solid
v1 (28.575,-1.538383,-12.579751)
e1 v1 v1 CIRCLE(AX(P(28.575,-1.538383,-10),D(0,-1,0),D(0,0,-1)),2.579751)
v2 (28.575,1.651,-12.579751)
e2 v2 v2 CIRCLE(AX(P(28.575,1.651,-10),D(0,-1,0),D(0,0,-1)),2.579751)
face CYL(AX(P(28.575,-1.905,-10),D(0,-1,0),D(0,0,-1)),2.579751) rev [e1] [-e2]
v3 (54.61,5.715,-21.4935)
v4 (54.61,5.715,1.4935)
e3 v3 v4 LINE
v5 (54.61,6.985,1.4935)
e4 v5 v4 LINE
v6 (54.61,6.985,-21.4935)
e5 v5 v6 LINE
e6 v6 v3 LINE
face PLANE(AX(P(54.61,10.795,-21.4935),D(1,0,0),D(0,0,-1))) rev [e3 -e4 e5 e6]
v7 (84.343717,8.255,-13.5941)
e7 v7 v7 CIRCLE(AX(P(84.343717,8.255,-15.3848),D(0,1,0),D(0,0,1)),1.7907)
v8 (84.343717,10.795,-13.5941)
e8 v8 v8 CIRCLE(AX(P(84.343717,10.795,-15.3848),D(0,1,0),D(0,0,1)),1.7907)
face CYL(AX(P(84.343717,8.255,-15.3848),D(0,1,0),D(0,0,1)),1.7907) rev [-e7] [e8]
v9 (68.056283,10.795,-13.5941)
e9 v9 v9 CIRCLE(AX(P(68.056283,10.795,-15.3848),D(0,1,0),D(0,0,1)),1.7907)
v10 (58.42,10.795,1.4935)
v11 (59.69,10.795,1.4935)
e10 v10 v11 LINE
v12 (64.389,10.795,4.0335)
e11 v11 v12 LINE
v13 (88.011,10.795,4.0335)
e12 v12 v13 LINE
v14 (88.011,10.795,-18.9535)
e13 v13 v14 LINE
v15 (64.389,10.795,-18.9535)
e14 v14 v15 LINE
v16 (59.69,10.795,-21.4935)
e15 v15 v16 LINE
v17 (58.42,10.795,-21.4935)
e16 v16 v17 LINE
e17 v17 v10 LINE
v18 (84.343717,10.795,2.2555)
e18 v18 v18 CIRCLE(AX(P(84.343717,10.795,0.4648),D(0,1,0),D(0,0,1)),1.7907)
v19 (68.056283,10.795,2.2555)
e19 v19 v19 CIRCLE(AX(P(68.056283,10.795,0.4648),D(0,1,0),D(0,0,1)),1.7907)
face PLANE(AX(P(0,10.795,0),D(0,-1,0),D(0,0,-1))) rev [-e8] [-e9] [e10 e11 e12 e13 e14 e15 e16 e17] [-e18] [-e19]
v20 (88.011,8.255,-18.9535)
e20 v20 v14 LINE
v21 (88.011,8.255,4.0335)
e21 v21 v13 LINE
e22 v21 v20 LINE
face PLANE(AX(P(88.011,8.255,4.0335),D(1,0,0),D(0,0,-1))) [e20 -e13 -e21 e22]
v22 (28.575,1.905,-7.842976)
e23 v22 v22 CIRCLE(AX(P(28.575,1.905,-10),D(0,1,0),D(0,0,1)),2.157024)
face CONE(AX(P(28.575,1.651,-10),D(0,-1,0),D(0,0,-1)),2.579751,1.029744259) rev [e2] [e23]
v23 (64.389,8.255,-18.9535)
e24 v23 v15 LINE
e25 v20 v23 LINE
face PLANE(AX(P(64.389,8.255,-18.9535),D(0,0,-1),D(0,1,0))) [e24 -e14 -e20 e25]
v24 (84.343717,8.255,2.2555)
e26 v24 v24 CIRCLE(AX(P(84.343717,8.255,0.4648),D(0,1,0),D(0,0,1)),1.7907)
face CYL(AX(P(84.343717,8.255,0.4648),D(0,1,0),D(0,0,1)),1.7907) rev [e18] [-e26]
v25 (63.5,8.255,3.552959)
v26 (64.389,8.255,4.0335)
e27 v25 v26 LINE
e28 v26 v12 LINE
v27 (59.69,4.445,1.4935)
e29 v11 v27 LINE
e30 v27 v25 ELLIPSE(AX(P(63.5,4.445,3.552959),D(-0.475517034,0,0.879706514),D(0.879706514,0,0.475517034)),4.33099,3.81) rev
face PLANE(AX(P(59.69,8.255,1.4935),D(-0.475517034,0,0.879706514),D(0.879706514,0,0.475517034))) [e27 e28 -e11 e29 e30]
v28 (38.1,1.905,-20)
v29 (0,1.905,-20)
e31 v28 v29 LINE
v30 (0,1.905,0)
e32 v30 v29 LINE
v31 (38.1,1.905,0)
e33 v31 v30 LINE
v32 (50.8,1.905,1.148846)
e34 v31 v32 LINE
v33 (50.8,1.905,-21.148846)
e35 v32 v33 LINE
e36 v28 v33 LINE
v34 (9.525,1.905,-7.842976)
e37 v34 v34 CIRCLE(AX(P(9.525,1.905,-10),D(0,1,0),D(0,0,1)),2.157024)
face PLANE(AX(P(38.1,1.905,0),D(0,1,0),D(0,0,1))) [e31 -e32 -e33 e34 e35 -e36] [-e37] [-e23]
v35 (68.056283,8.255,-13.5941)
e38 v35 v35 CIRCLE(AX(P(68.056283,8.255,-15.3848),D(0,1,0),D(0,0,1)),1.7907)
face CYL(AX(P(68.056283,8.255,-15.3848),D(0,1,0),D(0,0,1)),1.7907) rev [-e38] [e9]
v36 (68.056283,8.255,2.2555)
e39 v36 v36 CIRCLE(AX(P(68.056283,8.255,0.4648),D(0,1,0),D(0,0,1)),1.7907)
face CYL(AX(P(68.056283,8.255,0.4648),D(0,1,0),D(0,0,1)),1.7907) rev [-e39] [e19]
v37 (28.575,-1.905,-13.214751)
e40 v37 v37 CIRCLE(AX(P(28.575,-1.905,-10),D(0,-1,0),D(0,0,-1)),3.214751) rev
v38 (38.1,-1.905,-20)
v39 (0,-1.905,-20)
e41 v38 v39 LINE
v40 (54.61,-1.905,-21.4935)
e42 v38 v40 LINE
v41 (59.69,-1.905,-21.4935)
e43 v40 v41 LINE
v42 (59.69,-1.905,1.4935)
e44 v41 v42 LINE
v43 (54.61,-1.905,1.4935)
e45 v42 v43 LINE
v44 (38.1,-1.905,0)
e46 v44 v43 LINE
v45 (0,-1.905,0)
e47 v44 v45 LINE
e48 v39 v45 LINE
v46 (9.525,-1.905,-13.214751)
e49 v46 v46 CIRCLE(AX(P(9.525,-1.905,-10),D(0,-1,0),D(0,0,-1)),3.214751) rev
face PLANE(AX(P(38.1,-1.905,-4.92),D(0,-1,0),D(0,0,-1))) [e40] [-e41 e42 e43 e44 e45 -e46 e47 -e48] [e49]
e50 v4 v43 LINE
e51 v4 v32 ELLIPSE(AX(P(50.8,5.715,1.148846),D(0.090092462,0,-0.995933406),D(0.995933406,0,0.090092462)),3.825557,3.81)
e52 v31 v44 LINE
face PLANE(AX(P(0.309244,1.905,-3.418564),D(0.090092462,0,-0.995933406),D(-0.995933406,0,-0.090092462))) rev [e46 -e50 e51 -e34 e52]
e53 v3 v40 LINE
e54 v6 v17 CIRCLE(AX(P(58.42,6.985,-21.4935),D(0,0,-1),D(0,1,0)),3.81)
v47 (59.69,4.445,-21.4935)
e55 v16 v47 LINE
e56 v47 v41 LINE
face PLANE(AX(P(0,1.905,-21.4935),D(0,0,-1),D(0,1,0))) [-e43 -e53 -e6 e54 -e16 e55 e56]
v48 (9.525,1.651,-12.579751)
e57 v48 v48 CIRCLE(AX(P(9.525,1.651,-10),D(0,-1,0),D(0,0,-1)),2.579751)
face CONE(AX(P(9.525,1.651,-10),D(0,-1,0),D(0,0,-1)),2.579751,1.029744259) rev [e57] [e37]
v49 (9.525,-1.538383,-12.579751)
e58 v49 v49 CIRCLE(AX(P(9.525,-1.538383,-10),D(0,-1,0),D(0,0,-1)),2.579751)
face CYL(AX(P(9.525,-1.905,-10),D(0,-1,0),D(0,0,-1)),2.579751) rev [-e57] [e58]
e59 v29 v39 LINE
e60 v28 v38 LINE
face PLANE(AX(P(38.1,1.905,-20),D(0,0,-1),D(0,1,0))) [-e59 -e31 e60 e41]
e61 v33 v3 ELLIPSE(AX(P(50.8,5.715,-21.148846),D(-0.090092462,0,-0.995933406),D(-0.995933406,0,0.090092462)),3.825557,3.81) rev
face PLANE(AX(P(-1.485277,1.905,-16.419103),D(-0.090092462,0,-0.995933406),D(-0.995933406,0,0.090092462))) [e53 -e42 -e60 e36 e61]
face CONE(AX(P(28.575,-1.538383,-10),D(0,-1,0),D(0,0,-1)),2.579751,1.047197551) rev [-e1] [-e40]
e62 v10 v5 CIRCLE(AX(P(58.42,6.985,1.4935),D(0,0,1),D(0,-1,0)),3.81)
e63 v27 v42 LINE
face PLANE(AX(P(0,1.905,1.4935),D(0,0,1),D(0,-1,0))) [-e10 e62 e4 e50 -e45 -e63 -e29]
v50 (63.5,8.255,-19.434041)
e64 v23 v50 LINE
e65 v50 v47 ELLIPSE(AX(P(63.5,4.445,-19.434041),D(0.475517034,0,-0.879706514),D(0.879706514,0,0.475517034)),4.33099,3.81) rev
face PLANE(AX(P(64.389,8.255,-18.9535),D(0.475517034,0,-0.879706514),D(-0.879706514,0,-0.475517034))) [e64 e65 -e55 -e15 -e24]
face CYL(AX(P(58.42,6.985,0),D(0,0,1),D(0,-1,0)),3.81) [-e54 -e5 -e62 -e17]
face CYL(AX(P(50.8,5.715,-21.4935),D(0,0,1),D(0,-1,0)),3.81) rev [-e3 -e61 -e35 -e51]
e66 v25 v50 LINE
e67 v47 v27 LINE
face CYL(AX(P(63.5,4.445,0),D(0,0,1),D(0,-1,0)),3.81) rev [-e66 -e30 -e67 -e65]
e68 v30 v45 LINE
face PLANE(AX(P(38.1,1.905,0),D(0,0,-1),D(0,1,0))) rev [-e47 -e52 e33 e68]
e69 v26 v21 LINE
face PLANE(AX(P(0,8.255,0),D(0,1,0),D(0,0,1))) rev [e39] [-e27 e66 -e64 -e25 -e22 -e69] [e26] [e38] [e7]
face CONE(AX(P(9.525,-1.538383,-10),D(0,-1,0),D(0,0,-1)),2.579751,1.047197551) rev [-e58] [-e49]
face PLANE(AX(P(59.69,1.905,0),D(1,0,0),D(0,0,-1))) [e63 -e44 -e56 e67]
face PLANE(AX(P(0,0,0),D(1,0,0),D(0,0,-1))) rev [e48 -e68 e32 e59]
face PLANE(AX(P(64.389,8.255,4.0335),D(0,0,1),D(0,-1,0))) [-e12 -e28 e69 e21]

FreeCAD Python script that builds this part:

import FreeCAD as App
import Part
import Sketcher

V = App.Vector
Q = App.Units.Quantity


def edges_at(feature, points):
    """Names of the edges that pass closest to the given points."""
    edges = feature.Shape.Edges
    near = lambda p: min(range(len(edges)), key=lambda i: edges[i].distToShape(Part.Vertex(*p))[0])
    return sorted({f"Edge{near(p) + 1}" for p in points})


def add_polygon(sketch, points):
    """Adds a closed chain of lines whose ends are joined by coincident constraints."""
    first, n = sketch.GeometryCount, len(points)
    for a, b in zip(points, points[1:] + points[:1]):
        sketch.addGeometry(Part.LineSegment(App.Vector(*a, 0), App.Vector(*b, 0)), False)
    for i in range(n):
        sketch.addConstraint(Sketcher.Constraint("Coincident", first + i, 2, first + (i + 1) % n, 1))

doc = App.newDocument("Part")
body = doc.addObject("PartDesign::Body", "Body")

sketch1 = body.newObject("Sketcher::SketchObject", "Sketch")
sketch1.AttachmentSupport = (doc.getObject("YZ_Plane"), [""])
sketch1.MapMode = "FlatFace"
add_polygon(sketch1, [(-1.905, -20), (1.905, -20), (1.905, 0), (-1.905, 0)])
sketch1.addConstraint([
    Sketcher.Constraint("Horizontal", 0),
    Sketcher.Constraint("Vertical", 1),
    Sketcher.Constraint("Horizontal", 2),
    Sketcher.Constraint("Vertical", 3),
    Sketcher.Constraint("Symmetric", 1, 2, 2, 2, -1, 1),
    Sketcher.Constraint("DistanceX", 0, 1, 0, 2, Q("0.15 in")),
    Sketcher.Constraint("DistanceY", 1, 1, 1, 2, Q("20 mm")),
])
pad1 = body.newObject("PartDesign::Pad", "Pad")
pad1.Profile = sketch1
pad1.Length = Q("1.5 in")

sketch2 = body.newObject("Sketcher::SketchObject", "Sketch001")
sketch2.AttachmentSupport = (doc.getObject("XZ_Plane"), [""])
sketch2.MapMode = "FlatFace"
sketch2.AttachmentOffset = App.Placement(V(0, 0, 0.075 * 25.4), App.Rotation())
sketch2.addGeometry([
    Part.Circle(V(28.575, -10, 0), V(0, 0, 1), 2.579751),
    Part.Circle(V(9.525, -10, 0), V(0, 0, 1), 2.579751),
], False)
sketch2.addConstraint([
    Sketcher.Constraint("Equal", 0, 1),
    Sketcher.Constraint("Horizontal", 0, 3, 1, 3),
    Sketcher.Constraint("Diameter", 0, Q("5.159502 mm")),
    Sketcher.Constraint("DistanceX", 1, 3, 0, 3, Q("0.75 in")),
    Sketcher.Constraint("DistanceX", -1, 1, 0, 3, Q("1.125 in")),
    Sketcher.Constraint("DistanceY", 0, 3, -1, 1, Q("10 mm")),
])
doc.recompute()
hole = body.newObject("PartDesign::Hole", "Hole")
hole.Profile = sketch2
hole.ThreadType = "None"
hole.Diameter = 5.159502
hole.DepthType = "Dimension"
hole.Depth = Q("0.14 in")
hole.DrillPoint = "Angled"
hole.DrillPointAngle = 118
doc.recompute()

chamfer = body.newObject("PartDesign::Chamfer", "Chamfer")
chamfer.Base = (hole, edges_at(hole, [(6.945, -1.905, -10), (25.995, -1.905, -10)]))
chamfer.ChamferType = "Two distances"
chamfer.Size = Q("0.025 in")
chamfer.Size2 = 0.366617

sketch3 = body.newObject("Sketcher::SketchObject", "Sketch002")
sketch3.AttachmentSupport = (doc.getObject("XZ_Plane"), [""])
sketch3.MapMode = "FlatFace"
sketch3.AttachmentOffset = App.Placement(V(0, 0, 0.075 * 25.4), App.Rotation())
add_polygon(sketch3, [(54.61, -21.4935), (38.1, -20), (38.1, 0), (54.61, 1.4935), (59.69, 1.4935), (59.69, -21.4935)])
sketch3.addConstraint([
    Sketcher.Constraint("Vertical", 1),
    Sketcher.Constraint("Horizontal", 3),
    Sketcher.Constraint("Vertical", 4),
    Sketcher.Constraint("Horizontal", 5),
    Sketcher.Constraint("PointOnObject", 1, 2, -1),
    Sketcher.Constraint("Vertical", 2, 2, 5, 2),
    Sketcher.Constraint("Equal", 0, 2),
    Sketcher.Constraint("DistanceX", 3, 1, 3, 2, Q("0.2 in")),
    Sketcher.Constraint("DistanceX", -1, 1, 0, 2, Q("1.5 in")),
    Sketcher.Constraint("DistanceY", 4, 2, 4, 1, Q("0.905 in")),
    Sketcher.Constraint("DistanceX", -1, 1, 2, 2, Q("2.15 in")),
    Sketcher.Constraint("DistanceY", 1, 1, 1, 2, Q("20 mm")),
])
pad2 = body.newObject("PartDesign::Pad", "Pad001")
pad2.Profile = sketch3
pad2.Length = Q("0.15 in")
pad2.Reversed = True

sketch4 = body.newObject("Sketcher::SketchObject", "Sketch003")
sketch4.AttachmentSupport = (doc.getObject("XZ_Plane"), [""])
sketch4.MapMode = "FlatFace"
sketch4.AttachmentOffset = App.Placement(V(0, 0, -0.075 * 25.4), App.Rotation())
add_polygon(sketch4, [(54.61, -21.4935), (54.61, 1.4935), (59.69, 1.4935), (59.69, -21.4935)])
sketch4.addConstraint([
    Sketcher.Constraint("Vertical", 0),
    Sketcher.Constraint("Horizontal", 1),
    Sketcher.Constraint("Vertical", 2),
    Sketcher.Constraint("Horizontal", 3),
    Sketcher.Constraint("DistanceX", 1, 1, 1, 2, Q("0.2 in")),
    Sketcher.Constraint("DistanceY", 0, 1, 0, 2, Q("0.905 in")),
    Sketcher.Constraint("DistanceX", -1, 1, 0, 2, Q("2.15 in")),
    Sketcher.Constraint("DistanceY", -1, 1, 0, 2, Q("1.4935 mm")),
])
pad3 = body.newObject("PartDesign::Pad", "Pad002")
pad3.Profile = sketch4
pad3.Length = Q("0.35 in")
pad3.Reversed = True

sketch5 = body.newObject("Sketcher::SketchObject", "Sketch004")
sketch5.AttachmentSupport = (doc.getObject("XZ_Plane"), [""])
sketch5.MapMode = "FlatFace"
sketch5.AttachmentOffset = App.Placement(V(0, 0, -0.425 * 25.4), App.Rotation())
add_polygon(sketch5, [(64.389, 4.0335), (88.011, 4.0335), (88.011, -18.9535), (64.389, -18.9535), (59.69, -21.4935), (59.69, 1.4935)])
sketch5.addGeometry(Part.Circle(V(68.056283, 0.4648, 0), V(0, 0, 1), 1.7907), False)
sketch5.addGeometry(Part.Circle(V(84.343717, 0.4648, 0), V(0, 0, 1), 1.7907), False)
sketch5.addGeometry(Part.Circle(V(68.056283, -15.3848, 0), V(0, 0, 1), 1.7907), False)
sketch5.addGeometry(Part.Circle(V(84.343717, -15.3848, 0), V(0, 0, 1), 1.7907), False)
sketch5.addConstraint([
    Sketcher.Constraint("Horizontal", 0),
    Sketcher.Constraint("Vertical", 1),
    Sketcher.Constraint("Horizontal", 2),
    Sketcher.Constraint("Vertical", 4),
    Sketcher.Constraint("Equal", 6, 7),
    Sketcher.Constraint("Equal", 7, 8),
    Sketcher.Constraint("Equal", 8, 9),
    Sketcher.Constraint("Parallel", 3, 5),
    Sketcher.Constraint("Horizontal", 6, 3, 7, 3),
    Sketcher.Constraint("Horizontal", 8, 3, 9, 3),
    Sketcher.Constraint("Vertical", 6, 3, 8, 3),
    Sketcher.Constraint("Vertical", 7, 3, 9, 3),
    Sketcher.Constraint("Vertical", 2, 2, 5, 2),
    Sketcher.Constraint("Diameter", 6, Q("0.141 in")),
    Sketcher.Constraint("DistanceX", 0, 1, 0, 2, Q("0.93 in")),
    Sketcher.Constraint("DistanceY", 3, 2, 2, 2, Q("0.1 in")),
    Sketcher.Constraint("DistanceY", 1, 2, 1, 1, Q("0.905 in")),
    Sketcher.Constraint("DistanceX", -1, 1, 3, 2, Q("2.35 in")),
    Sketcher.Constraint("DistanceX", -1, 1, 0, 2, Q("3.465 in")),
    Sketcher.Constraint("DistanceY", 8, 3, 6, 3, Q("0.624 in")),
    Sketcher.Constraint("DistanceY", 7, 3, 0, 2, Q("0.1405 in")),
    Sketcher.Constraint("DistanceY", -1, 1, 6, 3, Q("0.4648 mm")),
    Sketcher.Constraint("DistanceX", -1, 1, 6, 3, Q("68.056283 mm")),
    Sketcher.Constraint("DistanceX", -1, 1, 7, 3, Q("84.343717 mm")),
])
pad4 = body.newObject("PartDesign::Pad", "Pad003")
pad4.Profile = sketch5
pad4.Length = Q("0.1 in")
doc.recompute()

fillet = body.newObject("PartDesign::Fillet", "Fillet")
fillet.Base = (pad4, edges_at(pad4, [(54.61, 1.905, -10), (54.61, 10.795, -10), (59.69, 8.255, -10)]))
fillet.Radius = Q("0.15 in")

doc.recompute()
